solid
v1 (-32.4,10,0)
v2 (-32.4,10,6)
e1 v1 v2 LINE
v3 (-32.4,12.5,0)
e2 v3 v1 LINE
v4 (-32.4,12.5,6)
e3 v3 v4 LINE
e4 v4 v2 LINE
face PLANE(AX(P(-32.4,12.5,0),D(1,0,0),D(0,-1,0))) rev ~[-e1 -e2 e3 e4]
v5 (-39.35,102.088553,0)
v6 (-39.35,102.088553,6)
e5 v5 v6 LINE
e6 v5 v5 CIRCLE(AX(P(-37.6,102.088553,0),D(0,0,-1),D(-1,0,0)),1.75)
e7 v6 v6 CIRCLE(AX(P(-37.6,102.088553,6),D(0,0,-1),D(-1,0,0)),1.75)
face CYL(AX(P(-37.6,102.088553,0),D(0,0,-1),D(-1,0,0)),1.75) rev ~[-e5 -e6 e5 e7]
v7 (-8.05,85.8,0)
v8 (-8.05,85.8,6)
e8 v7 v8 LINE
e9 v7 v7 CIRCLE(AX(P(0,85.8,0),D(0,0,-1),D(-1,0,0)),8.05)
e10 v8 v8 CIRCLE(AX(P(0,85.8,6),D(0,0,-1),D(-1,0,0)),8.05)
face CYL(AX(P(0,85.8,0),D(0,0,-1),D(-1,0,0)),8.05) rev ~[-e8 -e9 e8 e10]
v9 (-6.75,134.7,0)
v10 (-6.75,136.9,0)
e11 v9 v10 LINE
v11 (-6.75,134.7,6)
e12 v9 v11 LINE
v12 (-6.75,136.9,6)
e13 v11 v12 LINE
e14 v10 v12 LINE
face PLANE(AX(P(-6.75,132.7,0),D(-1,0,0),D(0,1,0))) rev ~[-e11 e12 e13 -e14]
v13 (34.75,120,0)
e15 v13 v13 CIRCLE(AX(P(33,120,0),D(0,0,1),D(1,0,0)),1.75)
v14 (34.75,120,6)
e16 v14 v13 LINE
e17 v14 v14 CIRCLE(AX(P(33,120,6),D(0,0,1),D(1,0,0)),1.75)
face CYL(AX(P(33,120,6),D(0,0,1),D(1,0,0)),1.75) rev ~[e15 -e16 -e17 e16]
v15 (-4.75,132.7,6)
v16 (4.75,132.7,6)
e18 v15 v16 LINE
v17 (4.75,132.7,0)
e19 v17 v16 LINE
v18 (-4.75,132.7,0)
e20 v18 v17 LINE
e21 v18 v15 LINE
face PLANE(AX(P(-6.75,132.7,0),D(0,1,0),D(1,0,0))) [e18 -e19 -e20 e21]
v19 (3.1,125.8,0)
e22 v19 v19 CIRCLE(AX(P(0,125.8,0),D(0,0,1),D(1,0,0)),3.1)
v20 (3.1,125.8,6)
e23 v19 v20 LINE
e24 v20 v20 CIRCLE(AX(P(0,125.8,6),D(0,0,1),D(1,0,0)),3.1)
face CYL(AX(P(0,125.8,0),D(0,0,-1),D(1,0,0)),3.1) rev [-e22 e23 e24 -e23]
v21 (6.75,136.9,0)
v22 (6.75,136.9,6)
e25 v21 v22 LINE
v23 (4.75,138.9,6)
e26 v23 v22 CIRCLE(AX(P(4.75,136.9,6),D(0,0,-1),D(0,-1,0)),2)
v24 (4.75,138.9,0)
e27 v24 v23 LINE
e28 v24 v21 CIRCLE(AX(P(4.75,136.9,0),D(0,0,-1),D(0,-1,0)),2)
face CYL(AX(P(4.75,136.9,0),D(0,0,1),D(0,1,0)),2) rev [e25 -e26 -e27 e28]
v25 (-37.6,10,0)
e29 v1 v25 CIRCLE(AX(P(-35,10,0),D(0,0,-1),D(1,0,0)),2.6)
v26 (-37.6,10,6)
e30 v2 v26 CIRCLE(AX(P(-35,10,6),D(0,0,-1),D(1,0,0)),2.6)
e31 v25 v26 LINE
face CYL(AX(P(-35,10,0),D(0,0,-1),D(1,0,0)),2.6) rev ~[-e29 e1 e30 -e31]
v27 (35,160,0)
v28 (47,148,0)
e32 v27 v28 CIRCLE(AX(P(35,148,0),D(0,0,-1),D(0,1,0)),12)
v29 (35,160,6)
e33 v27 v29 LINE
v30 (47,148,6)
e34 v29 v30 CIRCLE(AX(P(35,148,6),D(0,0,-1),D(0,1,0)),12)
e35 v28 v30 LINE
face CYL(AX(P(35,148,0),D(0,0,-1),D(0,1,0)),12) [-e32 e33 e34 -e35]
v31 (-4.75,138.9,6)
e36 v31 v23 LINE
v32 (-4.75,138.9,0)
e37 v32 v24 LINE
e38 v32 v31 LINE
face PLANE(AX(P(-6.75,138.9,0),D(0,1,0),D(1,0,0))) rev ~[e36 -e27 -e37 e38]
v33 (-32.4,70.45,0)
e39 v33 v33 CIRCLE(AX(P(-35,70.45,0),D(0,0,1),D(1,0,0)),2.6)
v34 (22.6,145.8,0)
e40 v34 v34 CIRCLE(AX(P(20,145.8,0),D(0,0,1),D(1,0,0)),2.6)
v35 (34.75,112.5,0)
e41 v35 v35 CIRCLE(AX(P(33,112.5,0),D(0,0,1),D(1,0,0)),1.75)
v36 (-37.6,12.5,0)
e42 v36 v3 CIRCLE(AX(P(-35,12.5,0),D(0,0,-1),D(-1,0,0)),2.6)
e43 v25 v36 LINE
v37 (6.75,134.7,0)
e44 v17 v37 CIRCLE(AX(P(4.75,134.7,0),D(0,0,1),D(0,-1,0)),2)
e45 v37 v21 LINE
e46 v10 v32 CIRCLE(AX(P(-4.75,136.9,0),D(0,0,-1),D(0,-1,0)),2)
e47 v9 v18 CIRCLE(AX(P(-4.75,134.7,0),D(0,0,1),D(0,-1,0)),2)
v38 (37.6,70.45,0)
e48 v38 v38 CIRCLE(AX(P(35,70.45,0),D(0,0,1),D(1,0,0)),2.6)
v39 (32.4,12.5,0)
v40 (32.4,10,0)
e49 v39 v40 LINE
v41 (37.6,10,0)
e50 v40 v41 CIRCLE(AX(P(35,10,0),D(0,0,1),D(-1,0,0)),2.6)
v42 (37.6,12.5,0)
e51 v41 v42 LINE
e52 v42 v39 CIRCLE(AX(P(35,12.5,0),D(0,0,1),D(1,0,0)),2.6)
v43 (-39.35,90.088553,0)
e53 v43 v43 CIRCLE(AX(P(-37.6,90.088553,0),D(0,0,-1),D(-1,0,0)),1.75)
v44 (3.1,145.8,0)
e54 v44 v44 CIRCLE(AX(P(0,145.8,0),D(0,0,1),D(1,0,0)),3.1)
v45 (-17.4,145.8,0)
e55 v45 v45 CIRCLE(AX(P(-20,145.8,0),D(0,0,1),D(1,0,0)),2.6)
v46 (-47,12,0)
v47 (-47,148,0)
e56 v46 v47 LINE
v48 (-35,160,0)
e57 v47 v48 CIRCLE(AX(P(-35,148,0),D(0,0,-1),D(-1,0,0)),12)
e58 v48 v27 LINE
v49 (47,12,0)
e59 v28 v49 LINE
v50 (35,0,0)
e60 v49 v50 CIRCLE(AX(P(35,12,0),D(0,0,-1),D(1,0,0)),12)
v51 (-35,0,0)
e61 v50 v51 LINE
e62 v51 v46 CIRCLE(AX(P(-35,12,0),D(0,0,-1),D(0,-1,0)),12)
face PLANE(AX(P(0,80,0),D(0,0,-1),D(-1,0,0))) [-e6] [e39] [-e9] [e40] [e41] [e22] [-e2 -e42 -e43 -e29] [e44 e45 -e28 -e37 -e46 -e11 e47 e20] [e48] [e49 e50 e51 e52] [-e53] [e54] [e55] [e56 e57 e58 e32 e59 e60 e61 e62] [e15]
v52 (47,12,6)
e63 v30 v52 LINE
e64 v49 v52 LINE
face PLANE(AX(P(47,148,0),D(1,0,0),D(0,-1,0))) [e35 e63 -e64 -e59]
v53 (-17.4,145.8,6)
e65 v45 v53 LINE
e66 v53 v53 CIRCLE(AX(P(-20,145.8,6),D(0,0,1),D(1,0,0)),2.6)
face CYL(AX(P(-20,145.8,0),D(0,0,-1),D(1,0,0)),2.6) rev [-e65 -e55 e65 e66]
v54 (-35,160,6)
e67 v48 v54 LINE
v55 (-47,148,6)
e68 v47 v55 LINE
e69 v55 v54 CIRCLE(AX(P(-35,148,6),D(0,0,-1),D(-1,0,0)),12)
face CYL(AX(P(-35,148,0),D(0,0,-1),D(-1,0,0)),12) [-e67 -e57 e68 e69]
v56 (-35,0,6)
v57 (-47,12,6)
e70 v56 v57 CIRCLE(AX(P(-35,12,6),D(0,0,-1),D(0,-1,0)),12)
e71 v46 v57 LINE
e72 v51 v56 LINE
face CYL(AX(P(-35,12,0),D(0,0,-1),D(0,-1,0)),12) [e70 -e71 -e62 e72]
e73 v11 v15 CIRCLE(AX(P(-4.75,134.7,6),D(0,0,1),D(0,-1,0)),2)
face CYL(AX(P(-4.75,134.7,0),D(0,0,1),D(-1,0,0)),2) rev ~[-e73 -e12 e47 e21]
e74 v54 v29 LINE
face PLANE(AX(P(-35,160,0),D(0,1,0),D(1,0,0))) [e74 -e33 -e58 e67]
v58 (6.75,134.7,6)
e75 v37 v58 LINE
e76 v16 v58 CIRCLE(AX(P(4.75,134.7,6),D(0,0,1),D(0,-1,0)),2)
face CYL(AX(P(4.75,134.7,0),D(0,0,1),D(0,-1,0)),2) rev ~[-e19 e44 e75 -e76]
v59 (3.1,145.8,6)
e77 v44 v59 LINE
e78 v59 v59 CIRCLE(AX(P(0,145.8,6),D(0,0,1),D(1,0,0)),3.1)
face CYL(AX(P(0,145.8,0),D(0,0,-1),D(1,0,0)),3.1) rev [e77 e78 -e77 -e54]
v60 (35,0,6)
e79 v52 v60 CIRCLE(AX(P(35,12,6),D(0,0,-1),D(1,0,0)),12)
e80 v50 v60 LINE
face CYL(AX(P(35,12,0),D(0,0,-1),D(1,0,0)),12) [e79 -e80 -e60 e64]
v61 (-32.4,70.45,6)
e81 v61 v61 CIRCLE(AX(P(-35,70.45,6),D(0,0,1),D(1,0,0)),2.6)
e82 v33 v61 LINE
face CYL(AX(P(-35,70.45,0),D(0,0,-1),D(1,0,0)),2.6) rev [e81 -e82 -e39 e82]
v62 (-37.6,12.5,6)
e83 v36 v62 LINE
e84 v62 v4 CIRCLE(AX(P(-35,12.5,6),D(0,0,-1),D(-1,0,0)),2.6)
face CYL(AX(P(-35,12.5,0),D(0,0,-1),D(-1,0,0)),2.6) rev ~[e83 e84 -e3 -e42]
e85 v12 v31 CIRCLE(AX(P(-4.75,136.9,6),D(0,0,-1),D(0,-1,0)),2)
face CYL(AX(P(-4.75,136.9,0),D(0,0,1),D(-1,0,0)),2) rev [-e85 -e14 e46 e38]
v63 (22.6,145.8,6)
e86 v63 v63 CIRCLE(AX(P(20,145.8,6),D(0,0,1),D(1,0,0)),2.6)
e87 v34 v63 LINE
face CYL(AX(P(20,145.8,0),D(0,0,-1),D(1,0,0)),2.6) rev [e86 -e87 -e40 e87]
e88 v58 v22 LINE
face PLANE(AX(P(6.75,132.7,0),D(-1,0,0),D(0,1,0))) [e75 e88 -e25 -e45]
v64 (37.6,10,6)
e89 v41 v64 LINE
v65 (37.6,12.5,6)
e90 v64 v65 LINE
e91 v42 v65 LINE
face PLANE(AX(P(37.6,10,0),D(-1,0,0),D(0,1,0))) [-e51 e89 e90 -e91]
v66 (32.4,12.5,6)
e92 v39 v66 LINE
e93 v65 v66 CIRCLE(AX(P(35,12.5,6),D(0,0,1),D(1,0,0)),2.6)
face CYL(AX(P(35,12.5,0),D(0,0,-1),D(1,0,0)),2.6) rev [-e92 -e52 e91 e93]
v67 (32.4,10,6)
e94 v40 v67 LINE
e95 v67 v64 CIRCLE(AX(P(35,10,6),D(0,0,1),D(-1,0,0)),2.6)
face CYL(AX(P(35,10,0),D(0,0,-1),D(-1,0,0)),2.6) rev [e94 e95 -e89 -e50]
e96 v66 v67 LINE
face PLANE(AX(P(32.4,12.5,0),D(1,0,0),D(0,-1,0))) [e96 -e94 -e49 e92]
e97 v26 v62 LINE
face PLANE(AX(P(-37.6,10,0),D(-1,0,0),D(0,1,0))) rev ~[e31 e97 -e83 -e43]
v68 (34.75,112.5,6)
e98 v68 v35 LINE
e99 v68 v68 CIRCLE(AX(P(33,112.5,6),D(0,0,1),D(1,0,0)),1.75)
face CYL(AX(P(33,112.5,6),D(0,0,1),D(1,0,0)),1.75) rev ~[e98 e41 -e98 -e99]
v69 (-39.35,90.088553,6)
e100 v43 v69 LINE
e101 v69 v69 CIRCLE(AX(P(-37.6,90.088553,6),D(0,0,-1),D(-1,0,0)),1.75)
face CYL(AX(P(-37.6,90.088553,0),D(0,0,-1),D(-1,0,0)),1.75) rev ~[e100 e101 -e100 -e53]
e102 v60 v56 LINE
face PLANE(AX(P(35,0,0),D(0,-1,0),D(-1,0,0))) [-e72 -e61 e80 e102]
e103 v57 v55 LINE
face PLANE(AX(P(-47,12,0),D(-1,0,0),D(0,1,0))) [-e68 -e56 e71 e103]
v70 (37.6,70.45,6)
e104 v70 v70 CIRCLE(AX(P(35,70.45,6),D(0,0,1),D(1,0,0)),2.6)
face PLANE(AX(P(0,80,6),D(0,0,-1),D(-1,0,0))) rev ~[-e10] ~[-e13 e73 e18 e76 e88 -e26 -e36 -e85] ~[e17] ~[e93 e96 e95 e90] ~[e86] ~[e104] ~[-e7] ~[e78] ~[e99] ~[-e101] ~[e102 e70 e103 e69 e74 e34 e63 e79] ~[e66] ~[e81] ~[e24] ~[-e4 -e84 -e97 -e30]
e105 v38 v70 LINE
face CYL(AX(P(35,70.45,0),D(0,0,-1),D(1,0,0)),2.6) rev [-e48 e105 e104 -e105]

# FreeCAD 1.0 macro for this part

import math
import FreeCAD as App
import Part
import Sketcher
from FreeCAD import Vector


def edges_at(feature, points):
    """Names of the edges that pass closest to the given points."""
    edges = feature.Shape.Edges
    near = lambda p: min(range(len(edges)), key=lambda i: edges[i].distToShape(Part.Vertex(*p))[0])
    return sorted({f"Edge{near(p) + 1}" for p in points})

doc = App.newDocument("Part")
params = doc.addObject("Spreadsheet::Sheet", "Params")
for row, (alias, value) in enumerate([
    ("sketch1_radius", "12 mm"),
    ("sketch1_diameter", "5.2 mm"),
    ("sketch1_diameter2", "6.2 mm"),
    ("sketch1_width", "70 mm"),
    ("sketch1_height", "136 mm"),
    ("pad1_length", "6 mm"),
    ("sketch2_diameter", "16.1 mm"),
    ("pocket1_length", "10 mm"),
    ("sketch3_diameter", "3.5 mm"),
    ("pocket2_length", "10 mm"),
    ("sketch4_diameter", "3.5 mm"),
    ("pocket3_length", "10 mm"),
    ("fillet_radius", "2 mm"),
], start=1):
    params.set(f"A{row}", alias)
    params.set(f"B{row}", "=" + value)
    params.setAlias(f"B{row}", alias)

body = doc.addObject("PartDesign::Body", "Body")

sketch1 = body.newObject("Sketcher::SketchObject", "Sketch")
sketch1.AttachmentSupport = (doc.getObject("XY_Plane"), [""])
sketch1.MapMode = "FlatFace"
sketch1.addGeometry(Part.LineSegment(Vector(35, 160, 0), Vector(-35, 160, 0)), False)
sketch1.addGeometry(Part.ArcOfCircle(Part.Circle(Vector(-35, 148, 0), Vector(0, 0, 1), 12), math.radians(90), math.radians(180)), False)
sketch1.addGeometry(Part.LineSegment(Vector(-47, 148, 0), Vector(-47, 12, 0)), False)
sketch1.addGeometry(Part.ArcOfCircle(Part.Circle(Vector(-35, 12, 0), Vector(0, 0, 1), 12), math.radians(-180), math.radians(-90)), False)
sketch1.addGeometry(Part.LineSegment(Vector(-35, 0, 0), Vector(35, 0, 0)), False)
sketch1.addGeometry(Part.ArcOfCircle(Part.Circle(Vector(35, 12, 0), Vector(0, 0, 1), 12), math.radians(-90), math.radians(0)), False)
sketch1.addGeometry(Part.LineSegment(Vector(47, 12, 0), Vector(47, 148, 0)), False)
sketch1.addGeometry(Part.ArcOfCircle(Part.Circle(Vector(35, 148, 0), Vector(0, 0, 1), 12), math.radians(0), math.radians(90)), False)
sketch1.addGeometry(Part.ArcOfCircle(Part.Circle(Vector(35, 12.5, 0), Vector(0, 0, 1), 2.6), math.radians(0), math.radians(180)), False)
sketch1.addGeometry(Part.LineSegment(Vector(37.6, 12.5, 0), Vector(37.6, 10, 0)), False)
sketch1.addGeometry(Part.ArcOfCircle(Part.Circle(Vector(35, 10, 0), Vector(0, 0, 1), 2.6), math.radians(180), math.radians(360)), False)
sketch1.addGeometry(Part.LineSegment(Vector(32.4, 10, 0), Vector(32.4, 12.5, 0)), False)
sketch1.addGeometry(Part.Circle(Vector(35, 70.5, 0), Vector(0, 0, 1), 2.6), False)
sketch1.addGeometry(Part.LineSegment(Vector(-32.4, 12.5, 0), Vector(-32.4, 10, 0)), False)
sketch1.addGeometry(Part.ArcOfCircle(Part.Circle(Vector(-35, 10, 0), Vector(0, 0, 1), 2.6), math.radians(180), math.radians(360)), False)
sketch1.addGeometry(Part.LineSegment(Vector(-37.6, 10, 0), Vector(-37.6, 12.5, 0)), False)
sketch1.addGeometry(Part.ArcOfCircle(Part.Circle(Vector(-35, 12.5, 0), Vector(0, 0, 1), 2.6), math.radians(0), math.radians(180)), False)
sketch1.addGeometry(Part.Circle(Vector(-35, 70.5, 0), Vector(0, 0, 1), 2.6), False)
sketch1.addGeometry(Part.Circle(Vector(20, 145.8, 0), Vector(0, 0, 1), 2.6), False)
sketch1.addGeometry(Part.Circle(Vector(0, 125.8, 0), Vector(0, 0, 1), 3.1), False)
sketch1.addGeometry(Part.LineSegment(Vector(-6.8, 132.7, 0), Vector(-6.8, 138.9, 0)), False)
sketch1.addGeometry(Part.LineSegment(Vector(-6.8, 138.9, 0), Vector(6.8, 138.9, 0)), False)
sketch1.addGeometry(Part.LineSegment(Vector(6.8, 138.9, 0), Vector(6.8, 132.7, 0)), False)
sketch1.addGeometry(Part.LineSegment(Vector(6.8, 132.7, 0), Vector(-6.8, 132.7, 0)), False)
sketch1.addGeometry(Part.Circle(Vector(0, 145.8, 0), Vector(0, 0, 1), 3.1), False)
sketch1.addGeometry(Part.Circle(Vector(-20, 145.8, 0), Vector(0, 0, 1), 2.6), False)
sketch1.addConstraint(Sketcher.Constraint("Tangent", 0, 2, 1, 1))
sketch1.addConstraint(Sketcher.Constraint("Tangent", 1, 2, 2, 1))
sketch1.addConstraint(Sketcher.Constraint("Tangent", 2, 2, 3, 1))
sketch1.addConstraint(Sketcher.Constraint("Tangent", 3, 2, 4, 1))
sketch1.addConstraint(Sketcher.Constraint("Tangent", 4, 2, 5, 1))
sketch1.addConstraint(Sketcher.Constraint("Tangent", 5, 2, 6, 1))
sketch1.addConstraint(Sketcher.Constraint("Tangent", 6, 2, 7, 1))
sketch1.addConstraint(Sketcher.Constraint("Tangent", 7, 2, 0, 1))
sketch1.addConstraint(Sketcher.Constraint("Tangent", 8, 1, 9, 1))
sketch1.addConstraint(Sketcher.Constraint("Tangent", 9, 2, 10, 2))
sketch1.addConstraint(Sketcher.Constraint("Tangent", 10, 1, 11, 1))
sketch1.addConstraint(Sketcher.Constraint("Tangent", 11, 2, 8, 2))
sketch1.addConstraint(Sketcher.Constraint("Tangent", 13, 2, 14, 2))
sketch1.addConstraint(Sketcher.Constraint("Tangent", 14, 1, 15, 1))
sketch1.addConstraint(Sketcher.Constraint("Tangent", 15, 2, 16, 2))
sketch1.addConstraint(Sketcher.Constraint("Tangent", 16, 1, 13, 1))
sketch1.addConstraint(Sketcher.Constraint("Coincident", 20, 2, 21, 1))
sketch1.addConstraint(Sketcher.Constraint("Coincident", 21, 2, 22, 1))
sketch1.addConstraint(Sketcher.Constraint("Coincident", 22, 2, 23, 1))
sketch1.addConstraint(Sketcher.Constraint("Coincident", 23, 2, 20, 1))
sketch1.addConstraint(Sketcher.Constraint("Horizontal", 0))
sketch1.addConstraint(Sketcher.Constraint("Vertical", 2))
sketch1.addConstraint(Sketcher.Constraint("Horizontal", 4))
sketch1.addConstraint(Sketcher.Constraint("Vertical", 6))
sketch1.addConstraint(Sketcher.Constraint("Vertical", 9))
sketch1.addConstraint(Sketcher.Constraint("Vertical", 11))
sketch1.addConstraint(Sketcher.Constraint("Vertical", 13))
sketch1.addConstraint(Sketcher.Constraint("Vertical", 15))
sketch1.addConstraint(Sketcher.Constraint("Vertical", 20))
sketch1.addConstraint(Sketcher.Constraint("Horizontal", 21))
sketch1.addConstraint(Sketcher.Constraint("Vertical", 22))
sketch1.addConstraint(Sketcher.Constraint("Horizontal", 23))
sketch1.addConstraint(Sketcher.Constraint("Equal", 1, 3))
sketch1.addConstraint(Sketcher.Constraint("Equal", 3, 5))
sketch1.addConstraint(Sketcher.Constraint("Equal", 5, 7))
sketch1.addConstraint(Sketcher.Constraint("Equal", 10, 12))
sketch1.addConstraint(Sketcher.Constraint("Equal", 12, 14))
sketch1.addConstraint(Sketcher.Constraint("Equal", 16, 17))
sketch1.addConstraint(Sketcher.Constraint("Equal", 17, 18))
sketch1.addConstraint(Sketcher.Constraint("Equal", 19, 24))
sketch1.addConstraint(Sketcher.Constraint("Equal", 18, 25))
sketch1.addConstraint(Sketcher.Constraint("Symmetric", 3, 2, 4, 2, -1, 1))
sketch1.addConstraint(Sketcher.Constraint("Symmetric", 10, 3, 14, 3, -2))
sketch1.addConstraint(Sketcher.Constraint("Symmetric", 12, 3, 17, 3, -2))
sketch1.addConstraint(Sketcher.Constraint("Symmetric", 18, 3, 25, 3, -2))
sketch1.addConstraint(Sketcher.Constraint("PointOnObject", 19, 3, -2))
sketch1.addConstraint(Sketcher.Constraint("PointOnObject", 24, 3, -2))
sketch1.addConstraint(Sketcher.Constraint("Horizontal", 8, 3, 16, 3))
sketch1.addConstraint(Sketcher.Constraint("Horizontal", 18, 3, 24, 3))
sketch1.addConstraint(Sketcher.Constraint("Vertical", 7, 3, 8, 3))
sketch1.addConstraint(Sketcher.Constraint("Vertical", 10, 3, 12, 3))
sketch1.addConstraint(Sketcher.Constraint("Radius", 1, 12.0))
sketch1.addConstraint(Sketcher.Constraint("Diameter", 12, 5.2))
sketch1.addConstraint(Sketcher.Constraint("Diameter", 19, 6.2))
sketch1.addConstraint(Sketcher.Constraint("DistanceX", 0, 2, 0, 1, 70.0))
sketch1.addConstraint(Sketcher.Constraint("DistanceY", 2, 2, 2, 1, 136.0))
sketch1.addConstraint(Sketcher.Constraint("DistanceX", 21, 1, 21, 2, 13.5))
sketch1.addConstraint(Sketcher.Constraint("DistanceY", 9, 2, 9, 1, 2.5))
sketch1.addConstraint(Sketcher.Constraint("DistanceY", 20, 1, 20, 2, 6.2))
sketch1.addConstraint(Sketcher.Constraint("DistanceY", -1, 1, 10, 3, 10.0))
sketch1.addConstraint(Sketcher.Constraint("DistanceX", -1, 1, 18, 3, 20.0))
sketch1.addConstraint(Sketcher.Constraint("DistanceY", 19, 3, 18, 3, 20.0))
sketch1.addConstraint(Sketcher.Constraint("DistanceY", -1, 1, 18, 3, 145.8))
sketch1.addConstraint(Sketcher.Constraint("DistanceY", -1, 1, 20, 2, 138.9))
sketch1.addConstraint(Sketcher.Constraint("DistanceY", -1, 1, 12, 3, 70.45))
sketch1.addConstraint(Sketcher.Constraint("DistanceX", 20, 2, -1, 1, 6.75))
sketch1.setExpression("Constraints[51]", "Params.sketch1_radius")
sketch1.setExpression("Constraints[52]", "Params.sketch1_diameter")
sketch1.setExpression("Constraints[53]", "Params.sketch1_diameter2")
sketch1.setExpression("Constraints[54]", "Params.sketch1_width")
sketch1.setExpression("Constraints[55]", "Params.sketch1_height")
pad1 = body.newObject("PartDesign::Pad", "Pad")
pad1.Profile = sketch1
pad1.setExpression("Length", "Params.pad1_length")

sketch2 = body.newObject("Sketcher::SketchObject", "Sketch001")
sketch2.AttachmentSupport = (doc.getObject("XY_Plane"), [""])
sketch2.MapMode = "FlatFace"
sketch2.addGeometry(Part.Circle(Vector(0, 86, 0), Vector(0, 0, 1), 8), False)
sketch2.addConstraint(Sketcher.Constraint("PointOnObject", 0, 3, -2))
sketch2.addConstraint(Sketcher.Constraint("Diameter", 0, 16.1))
sketch2.addConstraint(Sketcher.Constraint("DistanceY", -1, 1, 0, 3, 85.8))
sketch2.setExpression("Constraints[1]", "Params.sketch2_diameter")
pocket1 = body.newObject("PartDesign::Pocket", "Pocket")
pocket1.Profile = sketch2
pocket1.setExpression("Length", "Params.pocket1_length")
pocket1.Reversed = True

sketch3 = body.newObject("Sketcher::SketchObject", "Sketch002")
sketch3.AttachmentSupport = (doc.getObject("XY_Plane"), [""])
sketch3.MapMode = "FlatFace"
sketch3.AttachmentOffset = App.Placement(Vector(0, 0, 6), App.Rotation())
sketch3.addGeometry(Part.Circle(Vector(33, 120, 0), Vector(0, 0, 1), 1.8), False)
sketch3.addGeometry(Part.Circle(Vector(33, 112.5, 0), Vector(0, 0, 1), 1.8), False)
sketch3.addConstraint(Sketcher.Constraint("Equal", 0, 1))
sketch3.addConstraint(Sketcher.Constraint("Vertical", 0, 3, 1, 3))
sketch3.addConstraint(Sketcher.Constraint("Diameter", 0, 3.5))
sketch3.addConstraint(Sketcher.Constraint("DistanceX", -1, 1, 0, 3, 33.0))
sketch3.addConstraint(Sketcher.Constraint("DistanceY", -1, 1, 0, 3, 120.0))
sketch3.addConstraint(Sketcher.Constraint("DistanceY", -1, 1, 1, 3, 112.5))
sketch3.setExpression("Constraints[2]", "Params.sketch3_diameter")
pocket2 = body.newObject("PartDesign::Pocket", "Pocket001")
pocket2.Profile = sketch3
pocket2.setExpression("Length", "Params.pocket2_length")

sketch4 = body.newObject("Sketcher::SketchObject", "Sketch003")
sketch4.AttachmentSupport = (doc.getObject("XY_Plane"), [""])
sketch4.MapMode = "FlatFace"
sketch4.addGeometry(Part.Circle(Vector(-37.6, 90.1, 0), Vector(0, 0, 1), 1.8), False)
sketch4.addGeometry(Part.Circle(Vector(-37.6, 102.1, 0), Vector(0, 0, 1), 1.8), False)
sketch4.addConstraint(Sketcher.Constraint("Equal", 0, 1))
sketch4.addConstraint(Sketcher.Constraint("Vertical", 0, 3, 1, 3))
sketch4.addConstraint(Sketcher.Constraint("Diameter", 0, 3.5))
sketch4.addConstraint(Sketcher.Constraint("DistanceY", 0, 3, 1, 3, 12.0))
sketch4.addConstraint(Sketcher.Constraint("DistanceX", 0, 3, -1, 1, 37.6))
sketch4.addConstraint(Sketcher.Constraint("DistanceY", -1, 1, 0, 3, 90.088553))
sketch4.setExpression("Constraints[2]", "Params.sketch4_diameter")
pocket3 = body.newObject("PartDesign::Pocket", "Pocket002")
pocket3.Profile = sketch4
pocket3.setExpression("Length", "Params.pocket3_length")
pocket3.Reversed = True
doc.recompute()

fillet = body.newObject("PartDesign::Fillet", "Fillet")
fillet.Base = (pocket3, edges_at(pocket3, [
    (6.75, 132.7, 3),
    (6.75, 138.9, 3),
    (-6.75, 138.9, 3),
    (-6.75, 132.7, 3),
]))
fillet.setExpression("Radius", "Params.fillet_radius")

doc.recompute()
